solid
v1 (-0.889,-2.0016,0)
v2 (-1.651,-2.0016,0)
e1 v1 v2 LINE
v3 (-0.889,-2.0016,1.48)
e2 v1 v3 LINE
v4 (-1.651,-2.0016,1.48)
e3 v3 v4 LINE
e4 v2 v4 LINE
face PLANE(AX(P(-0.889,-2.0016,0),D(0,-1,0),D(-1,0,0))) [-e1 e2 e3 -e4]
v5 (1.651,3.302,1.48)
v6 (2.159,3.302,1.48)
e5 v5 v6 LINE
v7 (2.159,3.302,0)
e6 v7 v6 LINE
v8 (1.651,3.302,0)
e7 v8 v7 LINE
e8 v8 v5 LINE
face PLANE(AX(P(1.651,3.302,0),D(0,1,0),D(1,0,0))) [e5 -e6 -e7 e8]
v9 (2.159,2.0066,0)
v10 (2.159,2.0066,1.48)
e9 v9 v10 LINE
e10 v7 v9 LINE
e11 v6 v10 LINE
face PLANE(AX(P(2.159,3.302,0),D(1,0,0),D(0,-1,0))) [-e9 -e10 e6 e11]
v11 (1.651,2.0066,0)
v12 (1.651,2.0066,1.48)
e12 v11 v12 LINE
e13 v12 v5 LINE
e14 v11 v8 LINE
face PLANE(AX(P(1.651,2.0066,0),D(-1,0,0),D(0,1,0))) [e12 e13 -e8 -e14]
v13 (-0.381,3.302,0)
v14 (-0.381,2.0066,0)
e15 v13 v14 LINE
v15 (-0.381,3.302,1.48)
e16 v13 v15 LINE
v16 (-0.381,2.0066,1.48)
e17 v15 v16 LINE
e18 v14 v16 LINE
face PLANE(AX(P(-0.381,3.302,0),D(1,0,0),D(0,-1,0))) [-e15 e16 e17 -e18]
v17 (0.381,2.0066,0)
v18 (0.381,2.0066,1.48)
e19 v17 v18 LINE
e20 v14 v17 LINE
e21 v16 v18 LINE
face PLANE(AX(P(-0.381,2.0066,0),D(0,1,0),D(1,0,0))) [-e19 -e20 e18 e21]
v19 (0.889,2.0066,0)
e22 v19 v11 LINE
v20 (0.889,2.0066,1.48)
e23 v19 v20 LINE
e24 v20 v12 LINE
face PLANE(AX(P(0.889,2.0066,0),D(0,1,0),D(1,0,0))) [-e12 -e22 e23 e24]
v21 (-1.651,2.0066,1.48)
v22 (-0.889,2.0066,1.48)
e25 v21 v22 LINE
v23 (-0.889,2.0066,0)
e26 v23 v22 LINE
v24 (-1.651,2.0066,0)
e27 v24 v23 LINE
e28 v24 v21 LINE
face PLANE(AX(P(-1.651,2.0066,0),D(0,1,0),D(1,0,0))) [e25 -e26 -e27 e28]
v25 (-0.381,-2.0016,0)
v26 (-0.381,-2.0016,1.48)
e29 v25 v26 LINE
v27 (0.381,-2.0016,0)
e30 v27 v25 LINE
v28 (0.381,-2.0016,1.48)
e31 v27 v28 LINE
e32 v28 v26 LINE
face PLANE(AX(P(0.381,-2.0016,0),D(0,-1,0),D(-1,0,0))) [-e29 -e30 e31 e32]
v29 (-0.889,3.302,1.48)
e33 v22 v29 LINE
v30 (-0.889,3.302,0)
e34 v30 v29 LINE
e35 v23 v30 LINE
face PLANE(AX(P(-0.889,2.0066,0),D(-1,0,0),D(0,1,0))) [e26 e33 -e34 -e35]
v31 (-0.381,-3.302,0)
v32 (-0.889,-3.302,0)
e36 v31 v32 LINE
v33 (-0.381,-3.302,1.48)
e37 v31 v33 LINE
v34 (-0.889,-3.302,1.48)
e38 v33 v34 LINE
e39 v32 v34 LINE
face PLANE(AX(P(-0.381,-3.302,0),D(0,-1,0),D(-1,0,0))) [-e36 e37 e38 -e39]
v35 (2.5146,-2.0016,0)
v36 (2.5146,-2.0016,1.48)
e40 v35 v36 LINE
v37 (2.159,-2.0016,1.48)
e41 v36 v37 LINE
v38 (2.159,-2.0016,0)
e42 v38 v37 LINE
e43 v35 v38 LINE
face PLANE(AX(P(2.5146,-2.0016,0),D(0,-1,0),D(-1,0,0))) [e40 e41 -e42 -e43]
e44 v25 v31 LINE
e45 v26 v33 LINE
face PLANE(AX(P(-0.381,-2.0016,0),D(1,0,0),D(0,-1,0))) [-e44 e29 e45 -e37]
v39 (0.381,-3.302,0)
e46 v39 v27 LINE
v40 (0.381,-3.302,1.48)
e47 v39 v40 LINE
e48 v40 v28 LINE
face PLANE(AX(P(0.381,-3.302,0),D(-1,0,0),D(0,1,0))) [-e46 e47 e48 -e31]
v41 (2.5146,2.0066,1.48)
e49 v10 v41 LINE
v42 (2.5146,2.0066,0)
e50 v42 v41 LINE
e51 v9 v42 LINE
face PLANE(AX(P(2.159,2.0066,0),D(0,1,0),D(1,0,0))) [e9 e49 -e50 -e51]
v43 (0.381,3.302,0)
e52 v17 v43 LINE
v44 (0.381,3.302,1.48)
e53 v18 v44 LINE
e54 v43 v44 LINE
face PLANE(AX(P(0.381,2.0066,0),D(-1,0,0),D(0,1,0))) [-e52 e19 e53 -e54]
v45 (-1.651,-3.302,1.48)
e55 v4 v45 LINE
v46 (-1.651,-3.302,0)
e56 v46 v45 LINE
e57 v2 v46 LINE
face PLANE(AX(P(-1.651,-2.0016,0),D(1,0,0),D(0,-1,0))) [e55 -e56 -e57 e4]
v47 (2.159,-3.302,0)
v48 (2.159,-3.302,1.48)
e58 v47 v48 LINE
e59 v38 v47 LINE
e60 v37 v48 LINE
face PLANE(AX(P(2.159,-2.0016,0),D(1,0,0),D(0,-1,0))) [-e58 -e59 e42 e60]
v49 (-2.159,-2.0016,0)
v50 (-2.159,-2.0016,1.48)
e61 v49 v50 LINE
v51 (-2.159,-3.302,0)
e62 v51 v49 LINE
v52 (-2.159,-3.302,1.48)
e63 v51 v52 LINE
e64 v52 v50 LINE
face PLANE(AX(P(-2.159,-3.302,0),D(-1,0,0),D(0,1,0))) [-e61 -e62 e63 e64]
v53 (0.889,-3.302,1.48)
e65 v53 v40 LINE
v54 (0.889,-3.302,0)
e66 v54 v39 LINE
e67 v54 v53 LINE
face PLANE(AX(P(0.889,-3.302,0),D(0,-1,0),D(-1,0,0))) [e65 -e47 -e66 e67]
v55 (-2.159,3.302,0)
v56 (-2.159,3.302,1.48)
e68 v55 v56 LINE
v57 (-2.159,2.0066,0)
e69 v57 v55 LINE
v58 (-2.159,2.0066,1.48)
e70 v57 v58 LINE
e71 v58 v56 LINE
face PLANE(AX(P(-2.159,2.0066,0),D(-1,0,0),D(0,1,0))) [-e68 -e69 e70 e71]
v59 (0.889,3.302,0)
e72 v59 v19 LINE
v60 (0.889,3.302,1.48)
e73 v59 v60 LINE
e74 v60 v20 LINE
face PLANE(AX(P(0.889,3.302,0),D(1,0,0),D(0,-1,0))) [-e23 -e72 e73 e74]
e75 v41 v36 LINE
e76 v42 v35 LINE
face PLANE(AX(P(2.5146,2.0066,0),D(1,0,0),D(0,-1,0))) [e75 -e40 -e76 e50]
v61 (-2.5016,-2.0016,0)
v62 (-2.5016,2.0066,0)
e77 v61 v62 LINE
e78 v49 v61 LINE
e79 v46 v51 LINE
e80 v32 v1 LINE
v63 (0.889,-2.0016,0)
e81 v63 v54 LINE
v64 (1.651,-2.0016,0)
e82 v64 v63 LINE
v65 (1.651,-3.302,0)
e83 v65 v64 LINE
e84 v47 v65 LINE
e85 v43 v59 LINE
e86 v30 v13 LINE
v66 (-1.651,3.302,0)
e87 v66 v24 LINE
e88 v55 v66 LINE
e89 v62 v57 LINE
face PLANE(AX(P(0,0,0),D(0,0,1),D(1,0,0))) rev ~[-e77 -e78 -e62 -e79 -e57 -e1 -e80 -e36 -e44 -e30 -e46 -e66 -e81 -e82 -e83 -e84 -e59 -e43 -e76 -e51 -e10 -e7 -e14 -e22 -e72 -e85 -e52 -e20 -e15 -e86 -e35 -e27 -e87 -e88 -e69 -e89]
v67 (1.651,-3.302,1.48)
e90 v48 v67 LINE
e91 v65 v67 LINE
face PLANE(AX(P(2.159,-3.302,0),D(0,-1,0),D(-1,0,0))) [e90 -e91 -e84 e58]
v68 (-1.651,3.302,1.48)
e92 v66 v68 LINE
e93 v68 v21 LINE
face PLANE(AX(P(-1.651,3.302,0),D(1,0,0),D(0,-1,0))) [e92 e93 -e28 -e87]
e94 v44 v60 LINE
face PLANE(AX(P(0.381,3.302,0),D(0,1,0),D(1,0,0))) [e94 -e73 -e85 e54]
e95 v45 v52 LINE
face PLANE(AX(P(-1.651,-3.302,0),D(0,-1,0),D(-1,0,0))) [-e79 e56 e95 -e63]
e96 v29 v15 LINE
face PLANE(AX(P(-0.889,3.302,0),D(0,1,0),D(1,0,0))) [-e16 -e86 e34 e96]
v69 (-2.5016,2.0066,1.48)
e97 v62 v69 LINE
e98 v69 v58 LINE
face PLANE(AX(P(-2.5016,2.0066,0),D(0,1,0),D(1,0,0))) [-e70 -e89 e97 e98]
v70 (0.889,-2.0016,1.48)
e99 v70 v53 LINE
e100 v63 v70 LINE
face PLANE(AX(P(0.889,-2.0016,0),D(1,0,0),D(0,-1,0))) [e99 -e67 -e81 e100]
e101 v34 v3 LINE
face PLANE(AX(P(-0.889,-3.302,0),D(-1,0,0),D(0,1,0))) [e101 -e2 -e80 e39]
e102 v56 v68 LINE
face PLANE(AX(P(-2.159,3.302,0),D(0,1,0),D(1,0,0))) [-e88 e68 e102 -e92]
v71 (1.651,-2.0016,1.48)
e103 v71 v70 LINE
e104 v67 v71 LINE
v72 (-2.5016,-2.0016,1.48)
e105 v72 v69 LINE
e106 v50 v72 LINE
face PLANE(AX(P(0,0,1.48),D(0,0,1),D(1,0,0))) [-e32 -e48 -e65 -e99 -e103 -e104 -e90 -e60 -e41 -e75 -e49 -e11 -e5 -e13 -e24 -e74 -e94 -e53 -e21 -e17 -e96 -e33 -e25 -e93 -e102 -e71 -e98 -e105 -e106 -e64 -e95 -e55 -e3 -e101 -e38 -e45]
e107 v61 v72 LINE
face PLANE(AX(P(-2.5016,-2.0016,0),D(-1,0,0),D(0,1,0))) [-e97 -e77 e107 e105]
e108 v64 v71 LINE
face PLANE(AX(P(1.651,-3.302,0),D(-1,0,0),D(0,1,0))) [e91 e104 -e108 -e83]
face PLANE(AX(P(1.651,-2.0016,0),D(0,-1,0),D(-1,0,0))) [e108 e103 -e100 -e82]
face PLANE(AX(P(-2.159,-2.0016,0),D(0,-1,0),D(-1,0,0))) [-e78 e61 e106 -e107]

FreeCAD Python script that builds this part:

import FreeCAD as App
import Part
import Sketcher

V = App.Vector
Q = App.Units.Quantity


def add_polygon(sketch, points):
    """Adds a closed chain of lines whose ends are joined by coincident constraints."""
    first, n = sketch.GeometryCount, len(points)
    for a, b in zip(points, points[1:] + points[:1]):
        sketch.addGeometry(Part.LineSegment(App.Vector(*a, 0), App.Vector(*b, 0)), False)
    for i in range(n):
        sketch.addConstraint(Sketcher.Constraint("Coincident", first + i, 2, first + (i + 1) % n, 1))

doc = App.newDocument("Part")
body = doc.addObject("PartDesign::Body", "Body")

# Sketch on XY plane
sketch1 = doc.addObject("Sketcher::SketchObject", "Sketch")
body.addObject(sketch1)
sketch1.AttachmentSupport = (doc.XY_Plane, [""])
sketch1.MapMode = "FlatFace"
add_polygon(sketch1, [(-2.16, 3.3), (-2.16, 2.01), (-2.5, 2.01), (-2.5, -2), (-2.16, -2), (-2.16, -3.3), (-1.65, -3.3), (-1.65, -2), (-0.89, -2), (-0.89, -3.3), (-0.38, -3.3), (-0.38, -2), (0.38, -2), (0.38, -3.3), (0.89, -3.3), (0.89, -2), (1.65, -2), (1.65, -3.3), (2.16, -3.3), (2.16, -2), (2.51, -2), (2.51, 2.01), (2.16, 2.01), (2.16, 3.3), (1.65, 3.3), (1.65, 2.01), (0.89, 2.01), (0.89, 3.3), (0.38, 3.3), (0.38, 2.01), (-0.38, 2.01), (-0.38, 3.3), (-0.89, 3.3), (-0.89, 2.01), (-1.65, 2.01), (-1.65, 3.3)])  # lines 0-35
sketch1.addConstraint([
    Sketcher.Constraint("Vertical", 0),
    Sketcher.Constraint("Horizontal", 1),
    Sketcher.Constraint("Vertical", 2),
    Sketcher.Constraint("Horizontal", 3),
    Sketcher.Constraint("Vertical", 4),
    Sketcher.Constraint("Horizontal", 5),
    Sketcher.Constraint("Vertical", 6),
    Sketcher.Constraint("Horizontal", 7),
    Sketcher.Constraint("Vertical", 8),
    Sketcher.Constraint("Horizontal", 9),
    Sketcher.Constraint("Vertical", 10),
    Sketcher.Constraint("Horizontal", 11),
    Sketcher.Constraint("Vertical", 12),
    Sketcher.Constraint("Horizontal", 13),
    Sketcher.Constraint("Vertical", 14),
    Sketcher.Constraint("Horizontal", 15),
    Sketcher.Constraint("Vertical", 16),
    Sketcher.Constraint("Horizontal", 17),
    Sketcher.Constraint("Vertical", 18),
    Sketcher.Constraint("Horizontal", 19),
    Sketcher.Constraint("Vertical", 20),
    Sketcher.Constraint("Horizontal", 21),
    Sketcher.Constraint("Vertical", 22),
    Sketcher.Constraint("Horizontal", 23),
    Sketcher.Constraint("Vertical", 24),
    Sketcher.Constraint("Horizontal", 25),
    Sketcher.Constraint("Vertical", 26),
    Sketcher.Constraint("Horizontal", 27),
    Sketcher.Constraint("Vertical", 28),
    Sketcher.Constraint("Horizontal", 29),
    Sketcher.Constraint("Vertical", 30),
    Sketcher.Constraint("Horizontal", 31),
    Sketcher.Constraint("Vertical", 32),
    Sketcher.Constraint("Horizontal", 33),
    Sketcher.Constraint("Vertical", 34),
    Sketcher.Constraint("Horizontal", 35),
    Sketcher.Constraint("Symmetric", 4, 2, 22, 2, -1, 1),
    Sketcher.Constraint("Symmetric", 8, 2, 26, 2, -1, 1),
    Sketcher.Constraint("Symmetric", 12, 2, 30, 2, -1, 1),
    Sketcher.Constraint("Symmetric", 16, 2, 34, 2, -1, 1),
    Sketcher.Constraint("Symmetric", 9, 2, 12, 2, -2),
    Sketcher.Constraint("Symmetric", 7, 2, 14, 2, -2),
    Sketcher.Constraint("Symmetric", 5, 2, 16, 2, -2),
    Sketcher.Constraint("Symmetric", 3, 2, 18, 2, -2),
    Sketcher.Constraint("Symmetric", 0, 2, 21, 2, -2),
    Sketcher.Constraint("Symmetric", 25, 2, 32, 2, -2),
    Sketcher.Constraint("Horizontal", 3, 2, 6, 2),
    Sketcher.Constraint("Horizontal", 5, 2, 8, 2),
    Sketcher.Constraint("Horizontal", 7, 2, 10, 2),
    Sketcher.Constraint("Horizontal", 21, 2, 24, 2),
    Sketcher.Constraint("Horizontal", 25, 2, 28, 2),
    Sketcher.Constraint("Vertical", 16, 2, 23, 2),
    Sketcher.Constraint("Vertical", 12, 2, 27, 2),
    Sketcher.Constraint("Equal", 5, 9),
    Sketcher.Constraint("Equal", 7, 11),
    Sketcher.Constraint("DistanceX", 5, 1, 5, 2, Q("0.02 in")),
    Sketcher.Constraint("DistanceX", 7, 1, 7, 2, Q("0.03 in")),
    Sketcher.Constraint("DistanceX", 19, 1, 19, 2, Q("0.014 in")),
    Sketcher.Constraint("DistanceY", 0, 2, 0, 1, Q("0.051 in")),
    Sketcher.Constraint("DistanceY", 4, 2, -1, 1, Q("0.13 in")),
    Sketcher.Constraint("DistanceX", 1, 2, 1, 1, Q("0.0135 in")),
    Sketcher.Constraint("DistanceY", 2, 2, 2, 1, Q("0.1578 in")),
])
pad1 = doc.addObject("PartDesign::Pad", "Pad")
body.addObject(pad1)
pad1.Profile = sketch1
pad1.Length = 1.48

doc.recompute()
